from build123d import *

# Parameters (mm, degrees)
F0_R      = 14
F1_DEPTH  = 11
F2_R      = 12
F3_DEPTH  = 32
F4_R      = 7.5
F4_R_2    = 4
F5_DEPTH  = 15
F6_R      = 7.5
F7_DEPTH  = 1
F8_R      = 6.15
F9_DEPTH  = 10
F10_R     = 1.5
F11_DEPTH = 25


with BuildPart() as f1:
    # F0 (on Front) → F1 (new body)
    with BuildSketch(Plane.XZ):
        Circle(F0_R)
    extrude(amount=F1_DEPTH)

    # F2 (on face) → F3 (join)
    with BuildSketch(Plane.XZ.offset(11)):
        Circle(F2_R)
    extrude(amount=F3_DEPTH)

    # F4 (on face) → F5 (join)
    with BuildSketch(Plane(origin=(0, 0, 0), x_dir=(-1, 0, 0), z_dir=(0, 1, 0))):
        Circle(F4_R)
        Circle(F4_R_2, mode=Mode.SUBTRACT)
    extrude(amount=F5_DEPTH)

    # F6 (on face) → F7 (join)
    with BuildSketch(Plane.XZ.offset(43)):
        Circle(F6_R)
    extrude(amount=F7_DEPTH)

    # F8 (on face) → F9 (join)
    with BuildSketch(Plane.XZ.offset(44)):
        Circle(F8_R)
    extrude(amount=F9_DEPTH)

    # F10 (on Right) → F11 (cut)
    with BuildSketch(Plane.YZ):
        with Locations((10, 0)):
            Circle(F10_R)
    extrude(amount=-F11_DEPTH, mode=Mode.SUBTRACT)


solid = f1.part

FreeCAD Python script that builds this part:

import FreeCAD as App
import Part
import Sketcher
Q = App.Units.Quantity

doc = App.newDocument("Part")
body = doc.addObject("PartDesign::Body", "Body")

# Sketch on XZ plane
sketch1 = body.newObject("Sketcher::SketchObject", "Sketch")
sketch1.AttachmentSupport = (doc.getObject("XZ_Plane"), [""])
sketch1.MapMode = "FlatFace"
sketch1.addGeometry(Part.Circle(App.Vector(0, 0, 0), App.Vector(0, 0, 1), 14), False)
sketch1.addConstraint([
    Sketcher.Constraint("Coincident", 0, 3, -1, 1),
    Sketcher.Constraint("Diameter", 0, Q("28 mm")),
])
pad1 = body.newObject("PartDesign::Pad", "Pad")
pad1.Profile = sketch1
pad1.Length = 11

# Sketch on XZ plane
sketch2 = body.newObject("Sketcher::SketchObject", "Sketch001")
sketch2.AttachmentSupport = (doc.getObject("XZ_Plane"), [""])
sketch2.MapMode = "FlatFace"
sketch2.AttachmentOffset = App.Placement(App.Vector(0, 0, 11), App.Rotation())
sketch2.addGeometry(Part.Circle(App.Vector(0, 0, 0), App.Vector(0, 0, 1), 12), False)
sketch2.addConstraint([
    Sketcher.Constraint("Coincident", 0, 3, -1, 1),
    Sketcher.Constraint("Diameter", 0, Q("24 mm")),
])
pad2 = body.newObject("PartDesign::Pad", "Pad001")
pad2.Profile = sketch2
pad2.Length = 32

# Sketch on XZ plane
sketch3 = body.newObject("Sketcher::SketchObject", "Sketch002")
sketch3.AttachmentSupport = (doc.getObject("XZ_Plane"), [""])
sketch3.MapMode = "FlatFace"
sketch3.addGeometry([
    Part.Circle(App.Vector(0, 0, 0), App.Vector(0, 0, 1), 7.5),
    Part.Circle(App.Vector(0, 0, 0), App.Vector(0, 0, 1), 4),
], False)
sketch3.addConstraint([
    Sketcher.Constraint("Coincident", 0, 3, -1, 1),
    Sketcher.Constraint("Coincident", 1, 3, -1, 1),
    Sketcher.Constraint("Diameter", 0, Q("15 mm")),
    Sketcher.Constraint("Diameter", 1, Q("8 mm")),
])
pad3 = body.newObject("PartDesign::Pad", "Pad002")
pad3.Profile = sketch3
pad3.Length = 15
pad3.Reversed = True

# Sketch on XZ plane
sketch4 = body.newObject("Sketcher::SketchObject", "Sketch003")
sketch4.AttachmentSupport = (doc.getObject("XZ_Plane"), [""])
sketch4.MapMode = "FlatFace"
sketch4.AttachmentOffset = App.Placement(App.Vector(0, 0, 43), App.Rotation())
sketch4.addGeometry(Part.Circle(App.Vector(0, 0, 0), App.Vector(0, 0, 1), 7.5), False)
sketch4.addConstraint([
    Sketcher.Constraint("Coincident", 0, 3, -1, 1),
    Sketcher.Constraint("Diameter", 0, Q("15 mm")),
])
pad4 = body.newObject("PartDesign::Pad", "Pad003")
pad4.Profile = sketch4
pad4.Length = 1

# Sketch on XZ plane
sketch5 = body.newObject("Sketcher::SketchObject", "Sketch004")
sketch5.AttachmentSupport = (doc.getObject("XZ_Plane"), [""])
sketch5.MapMode = "FlatFace"
sketch5.AttachmentOffset = App.Placement(App.Vector(0, 0, 44), App.Rotation())
sketch5.addGeometry(Part.Circle(App.Vector(0, 0, 0), App.Vector(0, 0, 1), 6.15), False)
sketch5.addConstraint([
    Sketcher.Constraint("Coincident", 0, 3, -1, 1),
    Sketcher.Constraint("Diameter", 0, Q("12.3 mm")),
])
pad5 = body.newObject("PartDesign::Pad", "Pad004")
pad5.Profile = sketch5
pad5.Length = 10

# Sketch on YZ plane
sketch6 = body.newObject("Sketcher::SketchObject", "Sketch005")
sketch6.AttachmentSupport = (doc.getObject("YZ_Plane"), [""])
sketch6.MapMode = "FlatFace"
sketch6.addGeometry(Part.Circle(App.Vector(10, 0, 0), App.Vector(0, 0, 1), 1.5), False)
sketch6.addConstraint([
    Sketcher.Constraint("PointOnObject", 0, 3, -1),
    Sketcher.Constraint("Diameter", 0, Q("3 mm")),
    Sketcher.Constraint("DistanceX", -1, 1, 0, 3, Q("10 mm")),
])
pocket1 = body.newObject("PartDesign::Pocket", "Pocket")
pocket1.Profile = sketch6
pocket1.Length = 25

doc.recompute()
